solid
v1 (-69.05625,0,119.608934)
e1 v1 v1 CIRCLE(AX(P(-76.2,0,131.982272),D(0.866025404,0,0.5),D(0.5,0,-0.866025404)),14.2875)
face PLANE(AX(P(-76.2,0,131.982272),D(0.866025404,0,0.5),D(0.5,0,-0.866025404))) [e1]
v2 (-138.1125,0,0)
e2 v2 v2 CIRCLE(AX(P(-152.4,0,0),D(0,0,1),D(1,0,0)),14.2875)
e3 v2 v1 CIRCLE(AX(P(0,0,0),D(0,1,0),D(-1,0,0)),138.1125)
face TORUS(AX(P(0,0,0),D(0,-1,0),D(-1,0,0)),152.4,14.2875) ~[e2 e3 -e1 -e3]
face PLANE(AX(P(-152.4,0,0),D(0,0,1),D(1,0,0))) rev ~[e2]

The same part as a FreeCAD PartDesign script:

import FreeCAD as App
import Part
import Sketcher
Q = App.Units.Quantity

doc = App.newDocument("Part")
params = doc.addObject("Spreadsheet::Sheet", "Params")
for row, (alias, value) in enumerate([
    ("sketch1_diameter", "1.125 in"),
    ("revolution_angle", "60 deg"),
], start=1):
    params.set(f"A{row}", alias)
    params.set(f"B{row}", "=" + value)
    params.setAlias(f"B{row}", alias)

body = doc.addObject("PartDesign::Body", "Body")

# Sketch on XY plane
sketch1 = body.newObject("Sketcher::SketchObject", "Sketch")
sketch1.AttachmentSupport = (doc.getObject("XY_Plane"), [""])
sketch1.MapMode = "FlatFace"
sketch1.addGeometry(Part.Circle(App.Vector(-152, 0, 0), App.Vector(0, 0, 1), 14), False)
sketch1.addConstraint(Sketcher.Constraint("PointOnObject", 0, 3, -1))
sketch1.addConstraint(Sketcher.Constraint("Diameter", 0, Q("1.125 in")))
sketch1.addConstraint(Sketcher.Constraint("DistanceX", 0, 3, -1, 1, Q("6 in")))
sketch1.setExpression("Constraints[1]", "Params.sketch1_diameter")
revolution = body.newObject("PartDesign::Revolution", "Revolution")
revolution.Profile = sketch1
revolution.ReferenceAxis = (sketch1, ["V_Axis"])
revolution.setExpression("Angle", "Params.revolution_angle")

doc.recompute()
